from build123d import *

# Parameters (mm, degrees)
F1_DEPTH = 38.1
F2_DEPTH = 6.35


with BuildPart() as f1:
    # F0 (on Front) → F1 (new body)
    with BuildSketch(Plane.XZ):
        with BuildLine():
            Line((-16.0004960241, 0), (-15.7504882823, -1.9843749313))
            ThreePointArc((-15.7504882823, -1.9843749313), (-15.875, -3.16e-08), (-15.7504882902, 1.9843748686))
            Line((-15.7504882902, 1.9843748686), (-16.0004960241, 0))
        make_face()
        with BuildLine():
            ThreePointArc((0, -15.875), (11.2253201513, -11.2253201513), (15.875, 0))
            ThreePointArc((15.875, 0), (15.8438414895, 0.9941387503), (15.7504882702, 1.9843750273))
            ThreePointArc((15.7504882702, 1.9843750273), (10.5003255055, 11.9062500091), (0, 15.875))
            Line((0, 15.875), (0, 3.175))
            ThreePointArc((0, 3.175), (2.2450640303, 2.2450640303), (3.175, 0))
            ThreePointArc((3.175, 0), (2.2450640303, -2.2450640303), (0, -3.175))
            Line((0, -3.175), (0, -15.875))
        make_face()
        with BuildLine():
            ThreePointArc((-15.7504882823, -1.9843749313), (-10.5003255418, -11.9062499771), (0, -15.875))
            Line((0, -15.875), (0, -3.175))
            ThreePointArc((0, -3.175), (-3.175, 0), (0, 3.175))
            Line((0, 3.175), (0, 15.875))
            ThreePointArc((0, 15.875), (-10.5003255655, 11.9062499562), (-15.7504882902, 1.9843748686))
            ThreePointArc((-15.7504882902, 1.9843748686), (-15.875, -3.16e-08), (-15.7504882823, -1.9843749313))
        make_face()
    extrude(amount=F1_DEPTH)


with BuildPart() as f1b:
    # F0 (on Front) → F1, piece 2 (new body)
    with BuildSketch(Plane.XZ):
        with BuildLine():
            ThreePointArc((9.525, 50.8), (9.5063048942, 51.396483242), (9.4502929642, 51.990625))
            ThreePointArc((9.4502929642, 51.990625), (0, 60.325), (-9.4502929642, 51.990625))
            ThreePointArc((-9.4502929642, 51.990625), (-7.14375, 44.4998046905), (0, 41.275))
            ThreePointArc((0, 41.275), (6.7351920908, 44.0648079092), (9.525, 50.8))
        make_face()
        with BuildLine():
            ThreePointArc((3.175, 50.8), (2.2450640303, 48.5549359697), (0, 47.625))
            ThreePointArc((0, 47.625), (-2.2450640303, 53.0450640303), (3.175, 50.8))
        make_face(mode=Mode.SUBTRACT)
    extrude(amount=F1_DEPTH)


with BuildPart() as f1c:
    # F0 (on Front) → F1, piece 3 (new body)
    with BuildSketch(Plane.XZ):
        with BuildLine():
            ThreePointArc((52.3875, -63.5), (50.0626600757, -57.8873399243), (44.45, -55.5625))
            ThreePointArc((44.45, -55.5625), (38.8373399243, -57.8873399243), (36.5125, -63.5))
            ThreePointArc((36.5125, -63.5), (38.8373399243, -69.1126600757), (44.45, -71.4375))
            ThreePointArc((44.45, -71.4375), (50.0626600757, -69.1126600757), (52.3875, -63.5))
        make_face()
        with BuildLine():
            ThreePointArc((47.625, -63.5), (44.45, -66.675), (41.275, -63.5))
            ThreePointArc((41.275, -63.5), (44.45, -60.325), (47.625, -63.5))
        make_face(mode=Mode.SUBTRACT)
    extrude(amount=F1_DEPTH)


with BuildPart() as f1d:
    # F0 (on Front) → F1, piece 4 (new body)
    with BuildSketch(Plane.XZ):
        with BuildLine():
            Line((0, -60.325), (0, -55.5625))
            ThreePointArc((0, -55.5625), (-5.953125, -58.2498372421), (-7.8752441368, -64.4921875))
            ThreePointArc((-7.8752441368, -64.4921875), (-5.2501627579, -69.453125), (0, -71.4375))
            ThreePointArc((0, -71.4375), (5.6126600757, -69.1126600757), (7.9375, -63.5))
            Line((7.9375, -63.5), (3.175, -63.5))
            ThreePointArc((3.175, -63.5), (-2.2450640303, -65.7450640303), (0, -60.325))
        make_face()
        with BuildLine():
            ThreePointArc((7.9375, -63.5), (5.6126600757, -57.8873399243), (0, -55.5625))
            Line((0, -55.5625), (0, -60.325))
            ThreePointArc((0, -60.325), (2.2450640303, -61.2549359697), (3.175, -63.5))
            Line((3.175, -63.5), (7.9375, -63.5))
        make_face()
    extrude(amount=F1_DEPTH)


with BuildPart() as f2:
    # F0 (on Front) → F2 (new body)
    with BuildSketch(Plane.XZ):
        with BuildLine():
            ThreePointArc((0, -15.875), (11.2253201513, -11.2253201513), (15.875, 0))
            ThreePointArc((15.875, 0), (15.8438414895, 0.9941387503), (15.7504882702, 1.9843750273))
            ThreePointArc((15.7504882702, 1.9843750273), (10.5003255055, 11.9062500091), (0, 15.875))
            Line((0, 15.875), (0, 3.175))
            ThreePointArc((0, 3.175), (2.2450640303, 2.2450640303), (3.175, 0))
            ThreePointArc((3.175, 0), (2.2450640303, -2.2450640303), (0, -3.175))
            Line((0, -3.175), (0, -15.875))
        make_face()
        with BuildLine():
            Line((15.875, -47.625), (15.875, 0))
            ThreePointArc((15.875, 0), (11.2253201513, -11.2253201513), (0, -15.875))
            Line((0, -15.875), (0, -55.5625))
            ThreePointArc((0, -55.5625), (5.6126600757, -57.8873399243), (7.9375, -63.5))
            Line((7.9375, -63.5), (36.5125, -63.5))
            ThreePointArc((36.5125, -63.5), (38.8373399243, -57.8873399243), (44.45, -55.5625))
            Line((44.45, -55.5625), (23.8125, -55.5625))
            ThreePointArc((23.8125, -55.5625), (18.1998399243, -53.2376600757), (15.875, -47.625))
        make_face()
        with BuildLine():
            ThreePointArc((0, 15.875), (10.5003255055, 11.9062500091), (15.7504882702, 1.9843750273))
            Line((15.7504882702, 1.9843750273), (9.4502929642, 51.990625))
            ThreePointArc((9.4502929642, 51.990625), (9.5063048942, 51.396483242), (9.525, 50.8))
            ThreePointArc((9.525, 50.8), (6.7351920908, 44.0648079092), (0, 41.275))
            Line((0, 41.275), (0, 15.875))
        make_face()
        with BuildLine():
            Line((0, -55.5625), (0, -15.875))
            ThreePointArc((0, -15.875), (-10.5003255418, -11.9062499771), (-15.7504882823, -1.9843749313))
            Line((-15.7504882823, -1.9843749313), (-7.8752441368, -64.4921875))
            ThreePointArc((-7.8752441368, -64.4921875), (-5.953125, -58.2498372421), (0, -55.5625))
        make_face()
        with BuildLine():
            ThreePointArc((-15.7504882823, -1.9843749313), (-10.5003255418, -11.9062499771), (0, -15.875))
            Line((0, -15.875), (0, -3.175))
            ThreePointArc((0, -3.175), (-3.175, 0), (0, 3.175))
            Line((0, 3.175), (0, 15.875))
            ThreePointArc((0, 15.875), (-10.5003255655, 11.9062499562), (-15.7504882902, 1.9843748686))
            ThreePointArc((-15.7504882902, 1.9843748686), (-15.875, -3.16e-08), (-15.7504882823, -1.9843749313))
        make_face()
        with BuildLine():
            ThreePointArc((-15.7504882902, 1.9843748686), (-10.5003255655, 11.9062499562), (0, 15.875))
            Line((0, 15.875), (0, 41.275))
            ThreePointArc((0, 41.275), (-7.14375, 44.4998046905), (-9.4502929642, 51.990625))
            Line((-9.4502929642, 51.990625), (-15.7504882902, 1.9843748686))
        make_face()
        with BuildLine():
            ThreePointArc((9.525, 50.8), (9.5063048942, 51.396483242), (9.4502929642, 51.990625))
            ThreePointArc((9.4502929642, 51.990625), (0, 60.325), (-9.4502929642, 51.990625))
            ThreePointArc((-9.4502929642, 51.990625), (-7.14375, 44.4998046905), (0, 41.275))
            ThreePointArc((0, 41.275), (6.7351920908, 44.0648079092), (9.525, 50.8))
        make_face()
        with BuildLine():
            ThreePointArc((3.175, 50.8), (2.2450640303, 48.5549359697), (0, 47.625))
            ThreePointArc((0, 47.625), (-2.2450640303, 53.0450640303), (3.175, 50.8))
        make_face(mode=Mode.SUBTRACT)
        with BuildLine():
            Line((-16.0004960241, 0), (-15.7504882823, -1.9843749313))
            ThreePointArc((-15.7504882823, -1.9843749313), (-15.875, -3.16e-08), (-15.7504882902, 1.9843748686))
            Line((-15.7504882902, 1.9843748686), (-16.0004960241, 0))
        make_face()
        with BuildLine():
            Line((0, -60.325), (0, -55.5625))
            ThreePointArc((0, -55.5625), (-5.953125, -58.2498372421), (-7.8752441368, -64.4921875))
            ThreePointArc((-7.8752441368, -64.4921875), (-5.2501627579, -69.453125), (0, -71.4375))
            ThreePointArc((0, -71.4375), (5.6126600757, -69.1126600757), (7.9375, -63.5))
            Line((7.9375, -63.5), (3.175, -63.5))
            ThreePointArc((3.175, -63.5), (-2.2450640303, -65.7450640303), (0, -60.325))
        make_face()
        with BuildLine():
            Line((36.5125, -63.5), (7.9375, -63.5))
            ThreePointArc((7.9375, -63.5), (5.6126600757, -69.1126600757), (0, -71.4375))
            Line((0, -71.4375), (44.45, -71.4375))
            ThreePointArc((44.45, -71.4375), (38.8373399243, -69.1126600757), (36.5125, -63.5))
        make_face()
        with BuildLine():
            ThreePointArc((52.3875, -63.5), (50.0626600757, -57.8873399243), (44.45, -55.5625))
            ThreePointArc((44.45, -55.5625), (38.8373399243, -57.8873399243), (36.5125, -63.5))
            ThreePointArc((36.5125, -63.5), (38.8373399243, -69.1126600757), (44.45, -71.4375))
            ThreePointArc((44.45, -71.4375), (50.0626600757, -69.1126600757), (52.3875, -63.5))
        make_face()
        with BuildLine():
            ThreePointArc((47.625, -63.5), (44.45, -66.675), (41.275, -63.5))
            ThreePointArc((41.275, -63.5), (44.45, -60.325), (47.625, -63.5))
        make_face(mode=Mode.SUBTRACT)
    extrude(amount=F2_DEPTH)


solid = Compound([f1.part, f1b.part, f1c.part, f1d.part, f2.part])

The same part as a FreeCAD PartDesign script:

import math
import FreeCAD as App
import Part
import Sketcher

V = App.Vector
Q = App.Units.Quantity

doc = App.newDocument("Part")
body = doc.addObject("PartDesign::Body", "Body")

sketch1 = body.newObject("Sketcher::SketchObject", "Sketch")
sketch1.AttachmentSupport = (doc.getObject("XZ_Plane"), [""])
sketch1.MapMode = "FlatFace"
sketch1.addGeometry([
    Part.LineSegment(V(-16.000496, 0, 0), V(-15.750488, -1.984375, 0)),
    Part.ArcOfCircle(Part.Circle(V(0, 0, 0), V(0, 0, 1), 15.875), math.radians(-172.819244), math.radians(-90)),
    Part.ArcOfCircle(Part.Circle(V(0, 0, 0), V(0, 0, 1), 15.875), math.radians(-90), math.radians(0)),
    Part.ArcOfCircle(Part.Circle(V(0, 0, 0), V(0, 0, 1), 15.875), math.radians(0), math.radians(7.180756)),
    Part.ArcOfCircle(Part.Circle(V(0, 0, 0), V(0, 0, 1), 15.875), math.radians(7.180756), math.radians(90)),
    Part.ArcOfCircle(Part.Circle(V(0, 0, 0), V(0, 0, 1), 15.875), math.radians(90), math.radians(172.819245)),
    Part.LineSegment(V(-15.750488, 1.984375, 0), V(-16.000496, 0, 0)),
    Part.ArcOfCircle(Part.Circle(V(0, 0, 0), V(0, 0, 1), 3.175), math.radians(90), math.radians(270)),
    Part.ArcOfCircle(Part.Circle(V(0, 0, 0), V(0, 0, 1), 3.175), math.radians(0), math.radians(90)),
    Part.ArcOfCircle(Part.Circle(V(0, 0, 0), V(0, 0, 1), 3.175), math.radians(-90), math.radians(0)),
], False)
sketch1.addConstraint([
    Sketcher.Constraint("Tangent", 0, 2, 1, 1),
    Sketcher.Constraint("Tangent", 1, 2, 2, 1),
    Sketcher.Constraint("Tangent", 2, 2, 3, 1),
    Sketcher.Constraint("Tangent", 3, 2, 4, 1),
    Sketcher.Constraint("Tangent", 4, 2, 5, 1),
    Sketcher.Constraint("Tangent", 5, 2, 6, 1),
    Sketcher.Constraint("Coincident", 6, 2, 0, 1),
    Sketcher.Constraint("Tangent", 7, 1, 8, 2),
    Sketcher.Constraint("Tangent", 8, 1, 9, 2),
    Sketcher.Constraint("Tangent", 9, 1, 7, 2),
    Sketcher.Constraint("Coincident", 1, 3, -1, 1),
    Sketcher.Constraint("Coincident", 3, 3, -1, 1),
    Sketcher.Constraint("Coincident", 5, 3, -1, 1),
    Sketcher.Constraint("Coincident", 7, 3, -1, 1),
    Sketcher.Constraint("PointOnObject", 1, 2, -2),
    Sketcher.Constraint("PointOnObject", 2, 2, -1),
    Sketcher.Constraint("PointOnObject", 4, 2, -2),
    Sketcher.Constraint("PointOnObject", 6, 2, -1),
    Sketcher.Constraint("PointOnObject", 7, 1, -2),
    Sketcher.Constraint("PointOnObject", 8, 1, -1),
    Sketcher.Constraint("PointOnObject", 9, 1, -2),
    Sketcher.Constraint("Horizontal", 3, 2, 5, 2),
    Sketcher.Constraint("Radius", 1, Q("0.625 in")),
    Sketcher.Constraint("Radius", 7, Q("0.125 in")),
    Sketcher.Constraint("DistanceY", 0, 2, -1, 1, Q("0.078125 in")),
])
pad1 = body.newObject("PartDesign::Pad", "Pad")
pad1.Profile = sketch1
pad1.Length = Q("1.5 in")
body2 = doc.addObject("PartDesign::Body", "Body001")

sketch2 = body2.newObject("Sketcher::SketchObject", "Sketch001")
sketch2.AttachmentSupport = (doc.getObject("XZ_Plane001"), [""])
sketch2.MapMode = "FlatFace"
sketch2.addGeometry([
    Part.ArcOfCircle(Part.Circle(V(0, 50.8, 0), V(0, 0, 1), 9.525), math.radians(0), math.radians(7.180756)),
    Part.ArcOfCircle(Part.Circle(V(0, 50.8, 0), V(0, 0, 1), 9.525), math.radians(7.180756), math.radians(172.819244)),
    Part.ArcOfCircle(Part.Circle(V(0, 50.8, 0), V(0, 0, 1), 9.525), math.radians(172.819244), math.radians(270)),
    Part.ArcOfCircle(Part.Circle(V(0, 50.8, 0), V(0, 0, 1), 9.525), math.radians(-90), math.radians(0)),
    Part.ArcOfCircle(Part.Circle(V(0, 50.8, 0), V(0, 0, 1), 3.175), math.radians(0), math.radians(270)),
    Part.ArcOfCircle(Part.Circle(V(0, 50.8, 0), V(0, 0, 1), 3.175), math.radians(-90), math.radians(0)),
], False)
sketch2.addConstraint([
    Sketcher.Constraint("Tangent", 0, 2, 1, 1),
    Sketcher.Constraint("Tangent", 1, 2, 2, 1),
    Sketcher.Constraint("Tangent", 2, 2, 3, 1),
    Sketcher.Constraint("Tangent", 3, 2, 0, 1),
    Sketcher.Constraint("Tangent", 4, 1, 5, 2),
    Sketcher.Constraint("Coincident", 5, 1, 4, 2),
    Sketcher.Constraint("Coincident", 4, 3, 0, 3),
    Sketcher.Constraint("Equal", 0, 1),
    Sketcher.Constraint("Symmetric", 0, 2, 1, 2, -2),
    Sketcher.Constraint("PointOnObject", 2, 2, -2),
    Sketcher.Constraint("PointOnObject", 5, 1, -2),
    Sketcher.Constraint("Horizontal", 5, 3, 3, 2),
    Sketcher.Constraint("Horizontal", 3, 2, 4, 1),
    Sketcher.Constraint("DistanceY", -1, 1, 0, 3, Q("2 in")),
    Sketcher.Constraint("Radius", 0, Q("0.375 in")),
    Sketcher.Constraint("Radius", 4, Q("0.125 in")),
    Sketcher.Constraint("DistanceY", -1, 1, 0, 2, Q("2.046875 in")),
])
pad2 = body2.newObject("PartDesign::Pad", "Pad001")
pad2.Profile = sketch2
pad2.Length = Q("1.5 in")
body3 = doc.addObject("PartDesign::Body", "Body002")

sketch3 = body3.newObject("Sketcher::SketchObject", "Sketch002")
sketch3.AttachmentSupport = (doc.getObject("XZ_Plane002"), [""])
sketch3.MapMode = "FlatFace"
sketch3.addGeometry([
    Part.ArcOfCircle(Part.Circle(V(44.45, -63.5, 0), V(0, 0, 1), 7.9375), math.radians(0), math.radians(90)),
    Part.ArcOfCircle(Part.Circle(V(44.45, -63.5, 0), V(0, 0, 1), 7.9375), math.radians(90), math.radians(180)),
    Part.ArcOfCircle(Part.Circle(V(44.45, -63.5, 0), V(0, 0, 1), 7.9375), math.radians(180), math.radians(270)),
    Part.ArcOfCircle(Part.Circle(V(44.45, -63.5, 0), V(0, 0, 1), 7.9375), math.radians(-90), math.radians(0)),
    Part.Circle(V(44.45, -63.5, 0), V(0, 0, 1), 3.175),
], False)
sketch3.addConstraint([
    Sketcher.Constraint("Tangent", 0, 2, 1, 1),
    Sketcher.Constraint("Tangent", 1, 2, 2, 1),
    Sketcher.Constraint("Tangent", 2, 2, 3, 1),
    Sketcher.Constraint("Tangent", 3, 2, 0, 1),
    Sketcher.Constraint("Coincident", 4, 3, 0, 3),
    Sketcher.Constraint("Equal", 0, 1),
    Sketcher.Constraint("Horizontal", 4, 3, 1, 2),
    Sketcher.Constraint("Horizontal", 1, 2, 3, 2),
    Sketcher.Constraint("Vertical", 4, 3, 0, 2),
    Sketcher.Constraint("Vertical", 0, 2, 2, 2),
    Sketcher.Constraint("Diameter", 4, Q("0.25 in")),
    Sketcher.Constraint("Radius", 0, Q("0.3125 in")),
    Sketcher.Constraint("DistanceY", 0, 3, -1, 1, Q("2.5 in")),
    Sketcher.Constraint("DistanceX", -1, 1, 0, 3, Q("1.75 in")),
])
pad3 = body3.newObject("PartDesign::Pad", "Pad002")
pad3.Profile = sketch3
pad3.Length = Q("1.5 in")
body4 = doc.addObject("PartDesign::Body", "Body003")

sketch4 = body4.newObject("Sketcher::SketchObject", "Sketch003")
sketch4.AttachmentSupport = (doc.getObject("XZ_Plane003"), [""])
sketch4.MapMode = "FlatFace"
sketch4.addGeometry([
    Part.ArcOfCircle(Part.Circle(V(0, -63.5, 0), V(0, 0, 1), 7.9375), math.radians(90), math.radians(187.180756)),
    Part.ArcOfCircle(Part.Circle(V(0, -63.5, 0), V(0, 0, 1), 7.9375), math.radians(-172.819244), math.radians(-90)),
    Part.ArcOfCircle(Part.Circle(V(0, -63.5, 0), V(0, 0, 1), 7.9375), math.radians(-90), math.radians(0)),
    Part.ArcOfCircle(Part.Circle(V(0, -63.5, 0), V(0, 0, 1), 7.9375), math.radians(0), math.radians(90)),
    Part.ArcOfCircle(Part.Circle(V(0, -63.5, 0), V(0, 0, 1), 3.175), math.radians(90), math.radians(360)),
    Part.ArcOfCircle(Part.Circle(V(0, -63.5, 0), V(0, 0, 1), 3.175), math.radians(0), math.radians(90)),
], False)
sketch4.addConstraint([
    Sketcher.Constraint("Tangent", 0, 2, 1, 1),
    Sketcher.Constraint("Tangent", 1, 2, 2, 1),
    Sketcher.Constraint("Tangent", 2, 2, 3, 1),
    Sketcher.Constraint("Tangent", 3, 2, 0, 1),
    Sketcher.Constraint("Tangent", 4, 1, 5, 2),
    Sketcher.Constraint("Coincident", 5, 1, 4, 2),
    Sketcher.Constraint("Coincident", 4, 3, 0, 3),
    Sketcher.Constraint("Equal", 0, 1),
    Sketcher.Constraint("PointOnObject", 0, 3, -2),
    Sketcher.Constraint("PointOnObject", 1, 2, -2),
    Sketcher.Constraint("PointOnObject", 3, 2, -2),
    Sketcher.Constraint("PointOnObject", 4, 1, -2),
    Sketcher.Constraint("Horizontal", 5, 3, 2, 2),
    Sketcher.Constraint("Horizontal", 2, 2, 5, 1),
    Sketcher.Constraint("Radius", 0, Q("0.3125 in")),
    Sketcher.Constraint("Radius", 4, Q("0.125 in")),
    Sketcher.Constraint("DistanceY", 0, 3, -1, 1, Q("2.5 in")),
    Sketcher.Constraint("DistanceX", 0, 2, -1, 1, 7.875244),
])
pad4 = body4.newObject("PartDesign::Pad", "Pad003")
pad4.Profile = sketch4
pad4.Length = Q("1.5 in")
body5 = doc.addObject("PartDesign::Body", "Body004")

sketch5 = body5.newObject("Sketcher::SketchObject", "Sketch004")
sketch5.AttachmentSupport = (doc.getObject("XZ_Plane004"), [""])
sketch5.MapMode = "FlatFace"
sketch5.addGeometry([
    Part.ArcOfCircle(Part.Circle(V(0, -63.5, 0), V(0, 0, 1), 7.9375), math.radians(-172.819244), math.radians(-90)),
    Part.LineSegment(V(0, -71.4375, 0), V(44.45, -71.4375, 0)),
    Part.ArcOfCircle(Part.Circle(V(44.45, -63.5, 0), V(0, 0, 1), 7.9375), math.radians(-90), math.radians(0)),
    Part.ArcOfCircle(Part.Circle(V(44.45, -63.5, 0), V(0, 0, 1), 7.9375), math.radians(0), math.radians(90)),
    Part.LineSegment(V(44.45, -55.5625, 0), V(23.8125, -55.5625, 0)),
    Part.ArcOfCircle(Part.Circle(V(23.8125, -47.625, 0), V(0, 0, 1), 7.9375), math.radians(180), math.radians(270)),
    Part.LineSegment(V(15.875, -47.625, 0), V(15.875, 0, 0)),
    Part.ArcOfCircle(Part.Circle(V(0, 0, 0), V(0, 0, 1), 15.875), math.radians(0), math.radians(7.180756)),
    Part.LineSegment(V(15.750488, 1.984375, 0), V(9.450293, 51.990625, 0)),
    Part.ArcOfCircle(Part.Circle(V(0, 50.8, 0), V(0, 0, 1), 9.525), math.radians(7.180756), math.radians(172.819244)),
    Part.LineSegment(V(-9.450293, 51.990625, 0), V(-15.750488, 1.984375, 0)),
    Part.LineSegment(V(-15.750488, 1.984375, 0), V(-16.000496, 0, 0)),
    Part.LineSegment(V(-16.000496, 0, 0), V(-15.750488, -1.984375, 0)),
    Part.LineSegment(V(-15.750488, -1.984375, 0), V(-7.875244, -64.492188, 0)),
    Part.ArcOfCircle(Part.Circle(V(0, -63.5, 0), V(0, 0, 1), 7.9375), math.radians(0), math.radians(90)),
    Part.LineSegment(V(7.9375, -63.5, 0), V(3.175, -63.5, 0)),
    Part.ArcOfCircle(Part.Circle(V(0, -63.5, 0), V(0, 0, 1), 3.175), math.radians(90), math.radians(360)),
    Part.LineSegment(V(0, -60.325, 0), V(0, -55.5625, 0)),
    Part.Circle(V(44.45, -63.5, 0), V(0, 0, 1), 3.175),
    Part.ArcOfCircle(Part.Circle(V(0, 0, 0), V(0, 0, 1), 3.175), math.radians(0), math.radians(90)),
    Part.ArcOfCircle(Part.Circle(V(0, 0, 0), V(0, 0, 1), 3.175), math.radians(-90), math.radians(0)),
    Part.ArcOfCircle(Part.Circle(V(0, 0, 0), V(0, 0, 1), 3.175), math.radians(90), math.radians(270)),
    Part.ArcOfCircle(Part.Circle(V(0, 50.8, 0), V(0, 0, 1), 3.175), math.radians(0), math.radians(270)),
    Part.ArcOfCircle(Part.Circle(V(0, 50.8, 0), V(0, 0, 1), 3.175), math.radians(-90), math.radians(0)),
], False)
sketch5.addConstraint([
    Sketcher.Constraint("Tangent", 0, 2, 1, 1),
    Sketcher.Constraint("Tangent", 1, 2, 2, 1),
    Sketcher.Constraint("Tangent", 2, 2, 3, 1),
    Sketcher.Constraint("Tangent", 3, 2, 4, 1),
    Sketcher.Constraint("Tangent", 4, 2, 5, 2),
    Sketcher.Constraint("Tangent", 5, 1, 6, 1),
    Sketcher.Constraint("Tangent", 6, 2, 7, 1),
    Sketcher.Constraint("Tangent", 7, 2, 8, 1),
    Sketcher.Constraint("Tangent", 8, 2, 9, 1),
    Sketcher.Constraint("Tangent", 9, 2, 10, 1),
    Sketcher.Constraint("Coincident", 10, 2, 11, 1),
    Sketcher.Constraint("Coincident", 11, 2, 12, 1),
    Sketcher.Constraint("Coincident", 12, 2, 13, 1),
    Sketcher.Constraint("Tangent", 13, 2, 0, 1),
    Sketcher.Constraint("Coincident", 14, 1, 15, 1),
    Sketcher.Constraint("Coincident", 15, 2, 16, 2),
    Sketcher.Constraint("Coincident", 16, 1, 17, 1),
    Sketcher.Constraint("Coincident", 17, 2, 14, 2),
    Sketcher.Constraint("Tangent", 19, 1, 20, 2),
    Sketcher.Constraint("Tangent", 20, 1, 21, 2),
    Sketcher.Constraint("Tangent", 21, 1, 19, 2),
    Sketcher.Constraint("Tangent", 22, 1, 23, 2),
    Sketcher.Constraint("Coincident", 23, 1, 22, 2),
    Sketcher.Constraint("Horizontal", 1),
    Sketcher.Constraint("Horizontal", 4),
    Sketcher.Constraint("Vertical", 6),
    Sketcher.Constraint("Horizontal", 15),
    Sketcher.Constraint("Vertical", 17),
    Sketcher.Constraint("Coincident", 7, 3, -1, 1),
    Sketcher.Constraint("Coincident", 19, 3, -1, 1),
    Sketcher.Constraint("Coincident", 14, 3, 0, 3),
    Sketcher.Constraint("Coincident", 16, 3, 0, 3),
    Sketcher.Constraint("Coincident", 18, 3, 2, 3),
    Sketcher.Constraint("Coincident", 22, 3, 9, 3),
    Sketcher.Constraint("Equal", 0, 2),
    Sketcher.Constraint("Equal", 2, 3),
    Sketcher.Constraint("Equal", 3, 5),
    Sketcher.Constraint("Equal", 5, 14),
    Sketcher.Constraint("Equal", 16, 18),
    Sketcher.Constraint("Equal", 18, 19),
    Sketcher.Constraint("Equal", 21, 22),
    Sketcher.Constraint("Symmetric", 7, 2, 12, 2, -1, 1),
    Sketcher.Constraint("Symmetric", 8, 2, 9, 2, -2),
    Sketcher.Constraint("PointOnObject", 0, 3, -2),
    Sketcher.Constraint("PointOnObject", 11, 2, -1),
    Sketcher.Constraint("PointOnObject", 16, 1, -2),
    Sketcher.Constraint("PointOnObject", 19, 1, -1),
    Sketcher.Constraint("PointOnObject", 20, 1, -2),
    Sketcher.Constraint("PointOnObject", 21, 1, -2),
    Sketcher.Constraint("PointOnObject", 23, 1, -2),
    Sketcher.Constraint("Parallel", 10, 11),
    Sketcher.Constraint("Parallel", 12, 13),
    Sketcher.Constraint("Horizontal", 18, 3, 2, 2),
    Sketcher.Constraint("Horizontal", 7, 2, 10, 2),
    Sketcher.Constraint("Horizontal", 2, 2, 14, 1),
    Sketcher.Constraint("Horizontal", 23, 3, 22, 1),
    Sketcher.Constraint("Diameter", 18, Q("0.25 in")),
    Sketcher.Constraint("DistanceY", -1, 1, 9, 3, Q("2 in")),
    Sketcher.Constraint("Radius", 0, Q("0.3125 in")),
    Sketcher.Constraint("Radius", 7, Q("0.625 in")),
    Sketcher.Constraint("Radius", 9, Q("0.375 in")),
    Sketcher.Constraint("DistanceX", 1, 1, 1, 2, Q("1.75 in")),
])
pad5 = body5.newObject("PartDesign::Pad", "Pad004")
pad5.Profile = sketch5
pad5.Length = Q("0.25 in")

doc.recompute()
